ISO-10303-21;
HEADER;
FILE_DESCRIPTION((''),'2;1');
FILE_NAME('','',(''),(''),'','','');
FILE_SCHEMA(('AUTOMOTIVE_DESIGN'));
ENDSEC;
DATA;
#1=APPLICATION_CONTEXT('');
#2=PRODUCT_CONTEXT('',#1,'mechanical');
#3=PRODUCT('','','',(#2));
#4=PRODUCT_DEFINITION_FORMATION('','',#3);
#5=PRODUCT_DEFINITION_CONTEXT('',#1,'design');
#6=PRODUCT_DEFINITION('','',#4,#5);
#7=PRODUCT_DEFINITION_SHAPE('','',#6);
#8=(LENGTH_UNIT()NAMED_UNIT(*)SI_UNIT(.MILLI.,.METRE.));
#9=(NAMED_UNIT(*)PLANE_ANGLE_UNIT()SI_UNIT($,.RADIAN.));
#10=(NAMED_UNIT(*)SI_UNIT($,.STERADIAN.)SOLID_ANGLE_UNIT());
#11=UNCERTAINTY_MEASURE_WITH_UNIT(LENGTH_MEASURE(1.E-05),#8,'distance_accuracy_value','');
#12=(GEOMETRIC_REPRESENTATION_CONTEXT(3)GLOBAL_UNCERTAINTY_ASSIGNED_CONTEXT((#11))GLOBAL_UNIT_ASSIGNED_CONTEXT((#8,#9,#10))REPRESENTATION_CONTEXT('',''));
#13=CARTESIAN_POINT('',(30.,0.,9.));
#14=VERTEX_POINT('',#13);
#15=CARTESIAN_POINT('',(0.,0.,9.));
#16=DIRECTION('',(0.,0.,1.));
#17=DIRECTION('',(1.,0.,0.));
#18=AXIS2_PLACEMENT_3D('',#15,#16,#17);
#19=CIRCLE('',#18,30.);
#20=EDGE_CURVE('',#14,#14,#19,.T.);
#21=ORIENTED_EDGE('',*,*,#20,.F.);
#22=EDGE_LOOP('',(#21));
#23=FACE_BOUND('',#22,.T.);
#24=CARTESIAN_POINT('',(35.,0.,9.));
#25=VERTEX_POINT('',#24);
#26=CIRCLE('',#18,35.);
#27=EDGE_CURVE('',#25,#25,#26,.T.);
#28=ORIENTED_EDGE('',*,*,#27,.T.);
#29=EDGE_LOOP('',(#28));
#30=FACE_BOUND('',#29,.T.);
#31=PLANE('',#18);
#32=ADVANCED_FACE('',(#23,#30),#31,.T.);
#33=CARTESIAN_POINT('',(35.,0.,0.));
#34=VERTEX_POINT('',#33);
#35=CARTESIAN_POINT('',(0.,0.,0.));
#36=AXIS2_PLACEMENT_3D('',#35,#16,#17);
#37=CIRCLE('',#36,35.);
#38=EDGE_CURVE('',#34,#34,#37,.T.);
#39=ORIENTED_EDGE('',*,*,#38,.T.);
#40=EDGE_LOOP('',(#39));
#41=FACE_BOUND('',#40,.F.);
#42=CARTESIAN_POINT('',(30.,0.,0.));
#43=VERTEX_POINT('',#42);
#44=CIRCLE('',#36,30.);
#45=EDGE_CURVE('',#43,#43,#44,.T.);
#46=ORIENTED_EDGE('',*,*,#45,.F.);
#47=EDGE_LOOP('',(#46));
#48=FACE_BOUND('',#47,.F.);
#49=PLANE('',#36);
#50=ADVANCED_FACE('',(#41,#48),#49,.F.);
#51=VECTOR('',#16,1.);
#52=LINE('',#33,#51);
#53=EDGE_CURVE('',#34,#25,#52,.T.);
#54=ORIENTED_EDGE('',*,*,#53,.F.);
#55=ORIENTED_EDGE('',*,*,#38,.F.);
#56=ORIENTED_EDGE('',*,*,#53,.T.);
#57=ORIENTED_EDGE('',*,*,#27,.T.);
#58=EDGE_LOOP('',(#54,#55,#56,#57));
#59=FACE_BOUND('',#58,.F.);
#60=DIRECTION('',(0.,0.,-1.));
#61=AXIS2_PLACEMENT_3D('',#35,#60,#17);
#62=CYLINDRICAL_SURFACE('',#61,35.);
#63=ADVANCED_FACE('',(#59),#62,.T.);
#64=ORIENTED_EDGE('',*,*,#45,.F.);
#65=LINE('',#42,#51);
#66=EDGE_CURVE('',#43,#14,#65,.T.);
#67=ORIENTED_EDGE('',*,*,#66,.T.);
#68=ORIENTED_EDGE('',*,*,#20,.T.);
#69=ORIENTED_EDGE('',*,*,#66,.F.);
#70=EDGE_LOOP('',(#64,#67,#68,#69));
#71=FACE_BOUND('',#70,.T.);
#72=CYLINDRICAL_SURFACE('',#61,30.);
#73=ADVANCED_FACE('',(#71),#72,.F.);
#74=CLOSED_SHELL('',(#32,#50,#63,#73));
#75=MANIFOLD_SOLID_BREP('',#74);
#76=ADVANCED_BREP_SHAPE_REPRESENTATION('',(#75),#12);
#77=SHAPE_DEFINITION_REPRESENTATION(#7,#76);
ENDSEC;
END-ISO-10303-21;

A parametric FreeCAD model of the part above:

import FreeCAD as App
import Part
import Sketcher
Q = App.Units.Quantity

doc = App.newDocument("Part")
body = doc.addObject("PartDesign::Body", "Body")

# Sketch on XY plane
sketch1 = doc.addObject("Sketcher::SketchObject", "Sketch")
body.addObject(sketch1)
sketch1.AttachmentSupport = (doc.XY_Plane, [""])
sketch1.MapMode = "FlatFace"
sketch1.addGeometry([
    Part.Circle(App.Vector(0, 0, 0), App.Vector(0, 0, 1), 35),
    Part.Circle(App.Vector(0, 0, 0), App.Vector(0, 0, 1), 30),
], False)
sketch1.addConstraint([
    Sketcher.Constraint("Coincident", 0, 3, -1, 1),
    Sketcher.Constraint("Coincident", 1, 3, -1, 1),
    Sketcher.Constraint("Diameter", 0, Q("70 mm")),
    Sketcher.Constraint("Diameter", 1, Q("60 mm")),
])
pad1 = doc.addObject("PartDesign::Pad", "Pad")
body.addObject(pad1)
pad1.Profile = sketch1
pad1.Length = 9

doc.recompute()
